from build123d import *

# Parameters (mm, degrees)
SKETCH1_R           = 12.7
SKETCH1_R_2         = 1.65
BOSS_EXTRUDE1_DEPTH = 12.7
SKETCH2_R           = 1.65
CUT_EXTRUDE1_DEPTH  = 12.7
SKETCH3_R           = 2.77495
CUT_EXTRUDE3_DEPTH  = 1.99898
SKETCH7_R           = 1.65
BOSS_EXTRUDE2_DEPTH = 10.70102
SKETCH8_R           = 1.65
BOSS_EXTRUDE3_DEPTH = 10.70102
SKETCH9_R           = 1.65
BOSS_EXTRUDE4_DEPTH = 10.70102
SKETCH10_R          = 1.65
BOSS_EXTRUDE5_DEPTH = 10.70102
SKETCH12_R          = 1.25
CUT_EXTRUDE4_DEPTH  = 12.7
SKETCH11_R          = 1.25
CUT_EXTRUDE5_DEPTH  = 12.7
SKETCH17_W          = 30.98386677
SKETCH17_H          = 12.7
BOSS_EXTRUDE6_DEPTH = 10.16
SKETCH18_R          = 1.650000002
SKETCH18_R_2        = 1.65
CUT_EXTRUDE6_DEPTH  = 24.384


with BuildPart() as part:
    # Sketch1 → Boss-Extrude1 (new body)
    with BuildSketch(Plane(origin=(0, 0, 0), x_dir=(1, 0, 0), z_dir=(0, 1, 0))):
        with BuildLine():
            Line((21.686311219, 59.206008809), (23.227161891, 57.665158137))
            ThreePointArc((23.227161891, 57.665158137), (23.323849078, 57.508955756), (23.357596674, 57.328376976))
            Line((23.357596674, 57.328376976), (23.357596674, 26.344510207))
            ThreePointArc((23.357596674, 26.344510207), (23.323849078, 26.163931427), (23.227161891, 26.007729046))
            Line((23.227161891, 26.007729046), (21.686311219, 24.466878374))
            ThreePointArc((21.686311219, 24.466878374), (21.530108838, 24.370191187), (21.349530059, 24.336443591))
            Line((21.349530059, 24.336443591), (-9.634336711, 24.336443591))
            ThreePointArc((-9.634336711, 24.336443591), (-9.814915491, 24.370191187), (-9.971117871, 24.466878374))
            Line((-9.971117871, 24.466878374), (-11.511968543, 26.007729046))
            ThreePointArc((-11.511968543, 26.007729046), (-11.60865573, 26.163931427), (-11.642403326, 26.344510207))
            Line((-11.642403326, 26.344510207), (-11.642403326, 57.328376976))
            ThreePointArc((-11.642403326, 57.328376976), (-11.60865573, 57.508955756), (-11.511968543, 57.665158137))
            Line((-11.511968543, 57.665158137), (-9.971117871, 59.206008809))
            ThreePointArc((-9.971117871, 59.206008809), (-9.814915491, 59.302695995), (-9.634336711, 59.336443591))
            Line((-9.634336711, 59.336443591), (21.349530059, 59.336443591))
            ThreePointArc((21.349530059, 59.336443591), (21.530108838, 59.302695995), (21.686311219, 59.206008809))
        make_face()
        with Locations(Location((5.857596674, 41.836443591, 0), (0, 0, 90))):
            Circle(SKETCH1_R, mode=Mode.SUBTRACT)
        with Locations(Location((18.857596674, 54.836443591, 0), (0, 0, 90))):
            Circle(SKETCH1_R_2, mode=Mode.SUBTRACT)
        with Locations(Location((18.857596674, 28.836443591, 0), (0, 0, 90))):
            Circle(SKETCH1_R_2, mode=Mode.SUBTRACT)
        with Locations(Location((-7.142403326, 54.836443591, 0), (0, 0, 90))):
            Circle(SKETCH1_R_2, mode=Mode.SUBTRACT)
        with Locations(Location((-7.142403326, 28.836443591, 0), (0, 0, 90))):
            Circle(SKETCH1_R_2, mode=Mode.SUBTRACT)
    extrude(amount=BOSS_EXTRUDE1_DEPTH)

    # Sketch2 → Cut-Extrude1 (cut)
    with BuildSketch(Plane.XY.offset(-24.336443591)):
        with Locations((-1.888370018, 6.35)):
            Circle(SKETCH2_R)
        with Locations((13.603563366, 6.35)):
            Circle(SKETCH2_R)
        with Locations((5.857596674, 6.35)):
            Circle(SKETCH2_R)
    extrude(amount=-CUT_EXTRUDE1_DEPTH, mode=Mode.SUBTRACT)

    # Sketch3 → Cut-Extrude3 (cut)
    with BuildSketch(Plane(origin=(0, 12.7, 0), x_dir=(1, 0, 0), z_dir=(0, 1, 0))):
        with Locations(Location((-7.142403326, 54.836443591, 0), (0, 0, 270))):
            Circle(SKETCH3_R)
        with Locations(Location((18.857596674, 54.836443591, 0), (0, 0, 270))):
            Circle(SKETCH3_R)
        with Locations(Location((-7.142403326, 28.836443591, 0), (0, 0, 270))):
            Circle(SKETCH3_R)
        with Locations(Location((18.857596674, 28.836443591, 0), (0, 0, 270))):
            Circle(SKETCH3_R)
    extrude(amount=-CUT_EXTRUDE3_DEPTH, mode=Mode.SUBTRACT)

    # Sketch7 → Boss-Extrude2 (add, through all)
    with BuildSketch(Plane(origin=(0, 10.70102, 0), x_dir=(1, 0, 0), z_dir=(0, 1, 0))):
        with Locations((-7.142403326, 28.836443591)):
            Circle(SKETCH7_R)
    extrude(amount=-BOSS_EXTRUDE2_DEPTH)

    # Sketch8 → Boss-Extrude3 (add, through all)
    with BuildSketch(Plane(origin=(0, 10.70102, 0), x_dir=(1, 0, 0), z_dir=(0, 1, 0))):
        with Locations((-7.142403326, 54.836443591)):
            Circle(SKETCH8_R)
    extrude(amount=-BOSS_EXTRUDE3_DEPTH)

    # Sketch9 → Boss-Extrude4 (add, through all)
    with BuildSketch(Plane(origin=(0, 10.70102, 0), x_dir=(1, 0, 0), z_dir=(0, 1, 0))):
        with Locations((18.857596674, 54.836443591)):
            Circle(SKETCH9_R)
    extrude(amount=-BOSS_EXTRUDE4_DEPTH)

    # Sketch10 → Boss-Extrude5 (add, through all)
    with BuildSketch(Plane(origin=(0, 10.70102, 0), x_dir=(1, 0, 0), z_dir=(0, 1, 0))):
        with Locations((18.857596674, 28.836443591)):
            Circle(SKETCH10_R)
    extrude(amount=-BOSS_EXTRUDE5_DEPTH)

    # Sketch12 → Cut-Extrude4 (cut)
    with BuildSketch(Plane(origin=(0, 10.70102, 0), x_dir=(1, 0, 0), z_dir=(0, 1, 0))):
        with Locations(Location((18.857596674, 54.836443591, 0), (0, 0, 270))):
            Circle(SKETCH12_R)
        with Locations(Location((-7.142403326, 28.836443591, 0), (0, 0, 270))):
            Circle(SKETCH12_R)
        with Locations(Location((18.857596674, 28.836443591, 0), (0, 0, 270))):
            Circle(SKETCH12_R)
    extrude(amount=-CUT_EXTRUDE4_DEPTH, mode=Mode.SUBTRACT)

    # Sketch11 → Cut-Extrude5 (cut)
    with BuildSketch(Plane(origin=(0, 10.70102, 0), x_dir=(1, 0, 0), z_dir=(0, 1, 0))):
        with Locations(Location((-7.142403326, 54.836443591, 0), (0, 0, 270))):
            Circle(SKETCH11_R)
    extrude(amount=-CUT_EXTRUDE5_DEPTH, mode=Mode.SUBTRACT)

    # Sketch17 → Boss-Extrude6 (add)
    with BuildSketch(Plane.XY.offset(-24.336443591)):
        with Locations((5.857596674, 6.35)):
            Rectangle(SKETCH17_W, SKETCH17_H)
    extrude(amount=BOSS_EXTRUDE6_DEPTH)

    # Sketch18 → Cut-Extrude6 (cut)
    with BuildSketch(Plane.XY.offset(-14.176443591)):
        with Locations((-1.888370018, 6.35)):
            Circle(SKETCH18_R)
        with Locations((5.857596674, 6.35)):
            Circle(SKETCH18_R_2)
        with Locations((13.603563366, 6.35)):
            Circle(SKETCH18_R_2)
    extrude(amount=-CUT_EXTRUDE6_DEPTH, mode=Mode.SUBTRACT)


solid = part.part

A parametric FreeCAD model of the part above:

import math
import FreeCAD as App
import Part
import Sketcher
Q = App.Units.Quantity


def add_polygon(sketch, points):
    """Adds a closed chain of lines whose ends are joined by coincident constraints."""
    first, n = sketch.GeometryCount, len(points)
    for a, b in zip(points, points[1:] + points[:1]):
        sketch.addGeometry(Part.LineSegment(App.Vector(*a, 0), App.Vector(*b, 0)), False)
    for i in range(n):
        sketch.addConstraint(Sketcher.Constraint("Coincident", first + i, 2, first + (i + 1) % n, 1))

doc = App.newDocument("Part")
body = doc.addObject("PartDesign::Body", "Body")

# Sketch on XZ plane
sketch1 = body.newObject("Sketcher::SketchObject", "Sketch")
sketch1.AttachmentSupport = (doc.getObject("XZ_Plane"), [""])
sketch1.MapMode = "FlatFace"
sketch1.addGeometry([
    Part.LineSegment(App.Vector(23.227162, -57.665158, 0), App.Vector(21.686311, -59.206009, 0)),  # 0
    Part.ArcOfCircle(Part.Circle(App.Vector(21.34953, -58.836444, 0), App.Vector(0, 0, 1), 0.5), math.radians(-90), math.radians(-47.657395)),  # 1
    Part.LineSegment(App.Vector(21.34953, -59.336444, 0), App.Vector(-9.634337, -59.336444, 0)),  # 2
    Part.ArcOfCircle(Part.Circle(App.Vector(-9.634337, -58.836444, 0), App.Vector(0, 0, 1), 0.5), math.radians(-132.342605), math.radians(-90)),  # 3
    Part.LineSegment(App.Vector(-9.971118, -59.206009, 0), App.Vector(-11.511969, -57.665158, 0)),  # 4
    Part.ArcOfCircle(Part.Circle(App.Vector(-11.142403, -57.328377, 0), App.Vector(0, 0, 1), 0.5), math.radians(180), math.radians(222.342606)),  # 5
    Part.LineSegment(App.Vector(-11.642403, -57.328377, 0), App.Vector(-11.642403, -26.34451, 0)),  # 6
    Part.ArcOfCircle(Part.Circle(App.Vector(-11.142403, -26.34451, 0), App.Vector(0, 0, 1), 0.5), math.radians(137.657394), math.radians(180)),  # 7
    Part.LineSegment(App.Vector(-11.511969, -26.007729, 0), App.Vector(-9.971118, -24.466878, 0)),  # 8
    Part.ArcOfCircle(Part.Circle(App.Vector(-9.634337, -24.836444, 0), App.Vector(0, 0, 1), 0.5), math.radians(90), math.radians(132.342606)),  # 9
    Part.LineSegment(App.Vector(-9.634337, -24.336444, 0), App.Vector(21.34953, -24.336444, 0)),  # 10
    Part.ArcOfCircle(Part.Circle(App.Vector(21.34953, -24.836444, 0), App.Vector(0, 0, 1), 0.5), math.radians(47.657394), math.radians(90)),  # 11
    Part.LineSegment(App.Vector(21.686311, -24.466878, 0), App.Vector(23.227162, -26.007729, 0)),  # 12
    Part.ArcOfCircle(Part.Circle(App.Vector(22.857597, -26.34451, 0), App.Vector(0, 0, 1), 0.5), math.radians(0), math.radians(42.342606)),  # 13
    Part.LineSegment(App.Vector(23.357597, -26.34451, 0), App.Vector(23.357597, -57.328377, 0)),  # 14
    Part.ArcOfCircle(Part.Circle(App.Vector(22.857597, -57.328377, 0), App.Vector(0, 0, 1), 0.5), math.radians(-42.342606), math.radians(0)),  # 15
    Part.Circle(App.Vector(18.857597, -28.836444, 0), App.Vector(0, 0, 1), 1.65),  # 16
    Part.Circle(App.Vector(5.857597, -41.836444, 0), App.Vector(0, 0, 1), 12.7),  # 17
    Part.Circle(App.Vector(-7.142403, -28.836444, 0), App.Vector(0, 0, 1), 1.65),  # 18
    Part.Circle(App.Vector(18.857597, -54.836444, 0), App.Vector(0, 0, 1), 1.65),  # 19
    Part.Circle(App.Vector(-7.142403, -54.836444, 0), App.Vector(0, 0, 1), 1.65),  # 20
], False)
sketch1.addConstraint([
    Sketcher.Constraint("Coincident", 0, 2, 1, 2),
    Sketcher.Constraint("Tangent", 1, 1, 2, 1),
    Sketcher.Constraint("Tangent", 2, 2, 3, 2),
    Sketcher.Constraint("Coincident", 3, 1, 4, 1),
    Sketcher.Constraint("Coincident", 4, 2, 5, 2),
    Sketcher.Constraint("Tangent", 5, 1, 6, 1),
    Sketcher.Constraint("Tangent", 6, 2, 7, 2),
    Sketcher.Constraint("Coincident", 7, 1, 8, 1),
    Sketcher.Constraint("Coincident", 8, 2, 9, 2),
    Sketcher.Constraint("Tangent", 9, 1, 10, 1),
    Sketcher.Constraint("Tangent", 10, 2, 11, 2),
    Sketcher.Constraint("Coincident", 11, 1, 12, 1),
    Sketcher.Constraint("Coincident", 12, 2, 13, 2),
    Sketcher.Constraint("Tangent", 13, 1, 14, 1),
    Sketcher.Constraint("Tangent", 14, 2, 15, 2),
    Sketcher.Constraint("Coincident", 15, 1, 0, 1),
    Sketcher.Constraint("Horizontal", 2),
    Sketcher.Constraint("Vertical", 6),
    Sketcher.Constraint("Horizontal", 10),
    Sketcher.Constraint("Vertical", 14),
    Sketcher.Constraint("Equal", 1, 3),
    Sketcher.Constraint("Equal", 3, 5),
    Sketcher.Constraint("Equal", 5, 7),
    Sketcher.Constraint("Equal", 7, 9),
    Sketcher.Constraint("Equal", 9, 11),
    Sketcher.Constraint("Equal", 11, 13),
    Sketcher.Constraint("Equal", 13, 15),
    Sketcher.Constraint("Equal", 16, 18),
    Sketcher.Constraint("Equal", 18, 19),
    Sketcher.Constraint("Equal", 19, 20),
    Sketcher.Constraint("Perpendicular", 0, 4),
    Sketcher.Constraint("Perpendicular", 4, 8),
    Sketcher.Constraint("Perpendicular", 8, 12),
    Sketcher.Constraint("Horizontal", 7, 3, 13, 3),
    Sketcher.Constraint("Horizontal", 5, 3, 15, 3),
    Sketcher.Constraint("Horizontal", 16, 3, 18, 3),
    Sketcher.Constraint("Horizontal", 19, 3, 20, 3),
    Sketcher.Constraint("Horizontal", 0, 2, 3, 1),
    Sketcher.Constraint("Horizontal", 8, 2, 11, 1),
    Sketcher.Constraint("Horizontal", 7, 1, 12, 2),
    Sketcher.Constraint("Horizontal", 4, 2, 15, 1),
    Sketcher.Constraint("Vertical", 3, 3, 9, 3),
    Sketcher.Constraint("Vertical", 1, 3, 11, 3),
    Sketcher.Constraint("Vertical", 16, 3, 19, 3),
    Sketcher.Constraint("Vertical", 18, 3, 20, 3),
    Sketcher.Constraint("Vertical", 4, 2, 7, 1),
    Sketcher.Constraint("Vertical", 3, 1, 8, 2),
    Sketcher.Constraint("Equal", 10, 6),
    Sketcher.Constraint("Diameter", 17, Q("1 in")),
    Sketcher.Constraint("Diameter", 16, Q("3.3 mm")),
    Sketcher.Constraint("Radius", 1, Q("0.5 mm")),
    Sketcher.Constraint("DistanceY", 3, 3, 9, 3, Q("34 mm")),
    Sketcher.Constraint("DistanceX", 7, 3, 13, 3, Q("34 mm")),
    Sketcher.Constraint("DistanceY", 16, 3, 11, 3, Q("4 mm")),
    Sketcher.Constraint("DistanceX", 16, 3, 13, 3, Q("4 mm")),
    Sketcher.Constraint("DistanceX", 17, 3, 16, 3, Q("13 mm")),
    Sketcher.Constraint("DistanceY", 17, 3, 16, 3, Q("13 mm")),
    Sketcher.Constraint("DistanceX", 7, 3, 18, 3, Q("4 mm")),
    Sketcher.Constraint("DistanceY", 1, 3, 19, 3, Q("4 mm")),
    Sketcher.Constraint("Distance", 0, Q("2.179092 mm")),
    Sketcher.Constraint("DistanceX", 2, 2, 2, 1, Q("30.983867 mm")),
    Sketcher.Constraint("DistanceX", -1, 1, 1, 3, Q("21.34953 mm")),
    Sketcher.Constraint("DistanceY", 7, 3, -1, 1, Q("26.34451 mm")),
])
pad1 = body.newObject("PartDesign::Pad", "Pad")
pad1.Profile = sketch1
pad1.Length = Q("0.5 in")
pad1.Reversed = True

# Sketch on XY plane
sketch2 = body.newObject("Sketcher::SketchObject", "Sketch001")
sketch2.AttachmentSupport = (doc.getObject("XY_Plane"), [""])
sketch2.MapMode = "FlatFace"
sketch2.AttachmentOffset = App.Placement(App.Vector(0, 0, -24.336444), App.Rotation())
sketch2.addGeometry([
    Part.Circle(App.Vector(-1.88837, 6.35, 0), App.Vector(0, 0, 1), 1.65),
    Part.Circle(App.Vector(13.603563, 6.35, 0), App.Vector(0, 0, 1), 1.65),
    Part.Circle(App.Vector(5.857597, 6.35, 0), App.Vector(0, 0, 1), 1.65),
], False)
sketch2.addConstraint([
    Sketcher.Constraint("Equal", 0, 1),
    Sketcher.Constraint("Equal", 1, 2),
    Sketcher.Constraint("Horizontal", 0, 3, 1, 3),
    Sketcher.Constraint("Horizontal", 1, 3, 2, 3),
    Sketcher.Constraint("Diameter", 0, Q("3.3 mm")),
    Sketcher.Constraint("DistanceY", -1, 1, 0, 3, Q("0.25 in")),
    Sketcher.Constraint("DistanceX", 0, 3, -1, 1, Q("1.88837 mm")),
    Sketcher.Constraint("DistanceX", -1, 1, 1, 3, Q("13.603563 mm")),
    Sketcher.Constraint("DistanceX", -1, 1, 2, 3, Q("5.857597 mm")),
])
pocket1 = body.newObject("PartDesign::Pocket", "Pocket")
pocket1.Profile = sketch2
pocket1.Length = Q("0.5 in")

# Sketch on XZ plane
sketch3 = body.newObject("Sketcher::SketchObject", "Sketch002")
sketch3.AttachmentSupport = (doc.getObject("XZ_Plane"), [""])
sketch3.MapMode = "FlatFace"
sketch3.AttachmentOffset = App.Placement(App.Vector(0, 0, -0.5 * 25.4), App.Rotation())
sketch3.addGeometry([
    Part.Circle(App.Vector(-7.142403, -54.836444, 0), App.Vector(0, 0, 1), 2.77495),
    Part.Circle(App.Vector(18.857597, -54.836444, 0), App.Vector(0, 0, 1), 2.77495),
    Part.Circle(App.Vector(-7.142403, -28.836444, 0), App.Vector(0, 0, 1), 2.77495),
    Part.Circle(App.Vector(18.857597, -28.836444, 0), App.Vector(0, 0, 1), 2.77495),
], False)
sketch3.addConstraint([
    Sketcher.Constraint("Equal", 0, 1),
    Sketcher.Constraint("Equal", 1, 2),
    Sketcher.Constraint("Equal", 2, 3),
    Sketcher.Constraint("Horizontal", 0, 3, 1, 3),
    Sketcher.Constraint("Horizontal", 2, 3, 3, 3),
    Sketcher.Constraint("Vertical", 0, 3, 2, 3),
    Sketcher.Constraint("Vertical", 1, 3, 3, 3),
    Sketcher.Constraint("Diameter", 0, Q("0.2185 in")),
    Sketcher.Constraint("DistanceX", 0, 3, 1, 3, Q("26 mm")),
    Sketcher.Constraint("DistanceY", 0, 3, 2, 3, Q("26 mm")),
    Sketcher.Constraint("DistanceX", 0, 3, -1, 1, Q("7.142403 mm")),
    Sketcher.Constraint("DistanceY", 0, 3, -1, 1, Q("54.836444 mm")),
])
pocket2 = body.newObject("PartDesign::Pocket", "Pocket001")
pocket2.Profile = sketch3
pocket2.Length = Q("0.0787 in")
pocket2.Reversed = True

# Sketch on XZ plane
sketch4 = body.newObject("Sketcher::SketchObject", "Sketch003")
sketch4.AttachmentSupport = (doc.getObject("XZ_Plane"), [""])
sketch4.MapMode = "FlatFace"
sketch4.AttachmentOffset = App.Placement(App.Vector(0, 0, -0.4213 * 25.4), App.Rotation())
sketch4.addGeometry(Part.Circle(App.Vector(-7.142403, -28.836444, 0), App.Vector(0, 0, 1), 1.65), False)
sketch4.addConstraint([
    Sketcher.Constraint("Diameter", 0, Q("3.3 mm")),
    Sketcher.Constraint("DistanceX", 0, 3, -1, 1, Q("7.142403 mm")),
    Sketcher.Constraint("DistanceY", 0, 3, -1, 1, Q("28.836444 mm")),
])
pad2 = body.newObject("PartDesign::Pad", "Pad001")
pad2.Profile = sketch4
pad2.Length = Q("0.4213 in")

# Sketch on XZ plane
sketch5 = body.newObject("Sketcher::SketchObject", "Sketch004")
sketch5.AttachmentSupport = (doc.getObject("XZ_Plane"), [""])
sketch5.MapMode = "FlatFace"
sketch5.AttachmentOffset = App.Placement(App.Vector(0, 0, -0.4213 * 25.4), App.Rotation())
sketch5.addGeometry(Part.Circle(App.Vector(-7.142403, -54.836444, 0), App.Vector(0, 0, 1), 1.65), False)
sketch5.addConstraint([
    Sketcher.Constraint("Diameter", 0, Q("3.3 mm")),
    Sketcher.Constraint("DistanceX", 0, 3, -1, 1, Q("7.142403 mm")),
    Sketcher.Constraint("DistanceY", 0, 3, -1, 1, Q("54.836444 mm")),
])
pad3 = body.newObject("PartDesign::Pad", "Pad002")
pad3.Profile = sketch5
pad3.Length = Q("0.4213 in")

# Sketch on XZ plane
sketch6 = body.newObject("Sketcher::SketchObject", "Sketch005")
sketch6.AttachmentSupport = (doc.getObject("XZ_Plane"), [""])
sketch6.MapMode = "FlatFace"
sketch6.AttachmentOffset = App.Placement(App.Vector(0, 0, -0.4213 * 25.4), App.Rotation())
sketch6.addGeometry(Part.Circle(App.Vector(18.857597, -54.836444, 0), App.Vector(0, 0, 1), 1.65), False)
sketch6.addConstraint([
    Sketcher.Constraint("Diameter", 0, Q("3.3 mm")),
    Sketcher.Constraint("DistanceX", -1, 1, 0, 3, Q("18.857597 mm")),
    Sketcher.Constraint("DistanceY", 0, 3, -1, 1, Q("54.836444 mm")),
])
pad4 = body.newObject("PartDesign::Pad", "Pad003")
pad4.Profile = sketch6
pad4.Length = Q("0.4213 in")

# Sketch on XZ plane
sketch7 = body.newObject("Sketcher::SketchObject", "Sketch006")
sketch7.AttachmentSupport = (doc.getObject("XZ_Plane"), [""])
sketch7.MapMode = "FlatFace"
sketch7.AttachmentOffset = App.Placement(App.Vector(0, 0, -0.4213 * 25.4), App.Rotation())
sketch7.addGeometry(Part.Circle(App.Vector(18.857597, -28.836444, 0), App.Vector(0, 0, 1), 1.65), False)
sketch7.addConstraint([
    Sketcher.Constraint("Diameter", 0, Q("3.3 mm")),
    Sketcher.Constraint("DistanceX", -1, 1, 0, 3, Q("18.857597 mm")),
    Sketcher.Constraint("DistanceY", 0, 3, -1, 1, Q("28.836444 mm")),
])
pad5 = body.newObject("PartDesign::Pad", "Pad004")
pad5.Profile = sketch7
pad5.Length = Q("0.4213 in")

# Sketch on XZ plane
sketch8 = body.newObject("Sketcher::SketchObject", "Sketch007")
sketch8.AttachmentSupport = (doc.getObject("XZ_Plane"), [""])
sketch8.MapMode = "FlatFace"
sketch8.AttachmentOffset = App.Placement(App.Vector(0, 0, -0.4213 * 25.4), App.Rotation())
sketch8.addGeometry([
    Part.Circle(App.Vector(18.857597, -54.836444, 0), App.Vector(0, 0, 1), 1.25),
    Part.Circle(App.Vector(-7.142403, -28.836444, 0), App.Vector(0, 0, 1), 1.25),
    Part.Circle(App.Vector(18.857597, -28.836444, 0), App.Vector(0, 0, 1), 1.25),
], False)
sketch8.addConstraint([
    Sketcher.Constraint("Equal", 0, 1),
    Sketcher.Constraint("Equal", 1, 2),
    Sketcher.Constraint("Horizontal", 1, 3, 2, 3),
    Sketcher.Constraint("Vertical", 0, 3, 2, 3),
    Sketcher.Constraint("Diameter", 0, Q("2.5 mm")),
    Sketcher.Constraint("DistanceX", 1, 3, 0, 3, Q("26 mm")),
    Sketcher.Constraint("DistanceY", 0, 3, 1, 3, Q("26 mm")),
    Sketcher.Constraint("DistanceX", -1, 1, 0, 3, Q("18.857597 mm")),
    Sketcher.Constraint("DistanceY", 0, 3, -1, 1, Q("54.836444 mm")),
])
pocket3 = body.newObject("PartDesign::Pocket", "Pocket002")
pocket3.Profile = sketch8
pocket3.Length = Q("0.5 in")
pocket3.Reversed = True

# Sketch on XZ plane
sketch9 = body.newObject("Sketcher::SketchObject", "Sketch008")
sketch9.AttachmentSupport = (doc.getObject("XZ_Plane"), [""])
sketch9.MapMode = "FlatFace"
sketch9.AttachmentOffset = App.Placement(App.Vector(0, 0, -0.4213 * 25.4), App.Rotation())
sketch9.addGeometry(Part.Circle(App.Vector(-7.142403, -54.836444, 0), App.Vector(0, 0, 1), 1.25), False)
sketch9.addConstraint([
    Sketcher.Constraint("Diameter", 0, Q("2.5 mm")),
    Sketcher.Constraint("DistanceX", 0, 3, -1, 1, Q("7.142403 mm")),
    Sketcher.Constraint("DistanceY", 0, 3, -1, 1, Q("54.836444 mm")),
])
pocket4 = body.newObject("PartDesign::Pocket", "Pocket003")
pocket4.Profile = sketch9
pocket4.Length = Q("0.5 in")
pocket4.Reversed = True

# Sketch on XY plane
sketch10 = body.newObject("Sketcher::SketchObject", "Sketch009")
sketch10.AttachmentSupport = (doc.getObject("XY_Plane"), [""])
sketch10.MapMode = "FlatFace"
sketch10.AttachmentOffset = App.Placement(App.Vector(0, 0, -24.336444), App.Rotation())
add_polygon(sketch10, [(-9.634337, 12.7), (-9.634337, 0), (21.34953, 0), (21.34953, 12.7)])  # lines 0-3
sketch10.addConstraint([
    Sketcher.Constraint("Vertical", 0),
    Sketcher.Constraint("Horizontal", 1),
    Sketcher.Constraint("Vertical", 2),
    Sketcher.Constraint("Horizontal", 3),
    Sketcher.Constraint("PointOnObject", 0, 2, -1),
    Sketcher.Constraint("DistanceY", 0, 2, 0, 1, Q("0.5 in")),
    Sketcher.Constraint("DistanceX", 1, 1, 1, 2, Q("30.983867 mm")),
    Sketcher.Constraint("DistanceX", -1, 1, 1, 2, Q("21.34953 mm")),
])
pad6 = body.newObject("PartDesign::Pad", "Pad005")
pad6.Profile = sketch10
pad6.Length = Q("0.4 in")

# Sketch on XY plane
sketch11 = body.newObject("Sketcher::SketchObject", "Sketch010")
sketch11.AttachmentSupport = (doc.getObject("XY_Plane"), [""])
sketch11.MapMode = "FlatFace"
sketch11.AttachmentOffset = App.Placement(App.Vector(0, 0, -14.176444), App.Rotation())
sketch11.addGeometry([
    Part.Circle(App.Vector(-1.88837, 6.35, 0), App.Vector(0, 0, 1), 1.65),
    Part.Circle(App.Vector(5.857597, 6.35, 0), App.Vector(0, 0, 1), 1.65),
    Part.Circle(App.Vector(13.603563, 6.35, 0), App.Vector(0, 0, 1), 1.65),
], False)
sketch11.addConstraint([
    Sketcher.Constraint("Equal", 0, 1),
    Sketcher.Constraint("Equal", 1, 2),
    Sketcher.Constraint("Horizontal", 0, 3, 1, 3),
    Sketcher.Constraint("Horizontal", 1, 3, 2, 3),
    Sketcher.Constraint("Diameter", 0, Q("3.3 mm")),
    Sketcher.Constraint("DistanceY", -1, 1, 0, 3, Q("0.25 in")),
    Sketcher.Constraint("DistanceX", 0, 3, -1, 1, Q("1.88837 mm")),
    Sketcher.Constraint("DistanceX", -1, 1, 1, 3, Q("5.857597 mm")),
    Sketcher.Constraint("DistanceX", -1, 1, 2, 3, Q("13.603563 mm")),
])
pocket5 = body.newObject("PartDesign::Pocket", "Pocket004")
pocket5.Profile = sketch11
pocket5.Length = Q("0.96 in")

doc.recompute()
